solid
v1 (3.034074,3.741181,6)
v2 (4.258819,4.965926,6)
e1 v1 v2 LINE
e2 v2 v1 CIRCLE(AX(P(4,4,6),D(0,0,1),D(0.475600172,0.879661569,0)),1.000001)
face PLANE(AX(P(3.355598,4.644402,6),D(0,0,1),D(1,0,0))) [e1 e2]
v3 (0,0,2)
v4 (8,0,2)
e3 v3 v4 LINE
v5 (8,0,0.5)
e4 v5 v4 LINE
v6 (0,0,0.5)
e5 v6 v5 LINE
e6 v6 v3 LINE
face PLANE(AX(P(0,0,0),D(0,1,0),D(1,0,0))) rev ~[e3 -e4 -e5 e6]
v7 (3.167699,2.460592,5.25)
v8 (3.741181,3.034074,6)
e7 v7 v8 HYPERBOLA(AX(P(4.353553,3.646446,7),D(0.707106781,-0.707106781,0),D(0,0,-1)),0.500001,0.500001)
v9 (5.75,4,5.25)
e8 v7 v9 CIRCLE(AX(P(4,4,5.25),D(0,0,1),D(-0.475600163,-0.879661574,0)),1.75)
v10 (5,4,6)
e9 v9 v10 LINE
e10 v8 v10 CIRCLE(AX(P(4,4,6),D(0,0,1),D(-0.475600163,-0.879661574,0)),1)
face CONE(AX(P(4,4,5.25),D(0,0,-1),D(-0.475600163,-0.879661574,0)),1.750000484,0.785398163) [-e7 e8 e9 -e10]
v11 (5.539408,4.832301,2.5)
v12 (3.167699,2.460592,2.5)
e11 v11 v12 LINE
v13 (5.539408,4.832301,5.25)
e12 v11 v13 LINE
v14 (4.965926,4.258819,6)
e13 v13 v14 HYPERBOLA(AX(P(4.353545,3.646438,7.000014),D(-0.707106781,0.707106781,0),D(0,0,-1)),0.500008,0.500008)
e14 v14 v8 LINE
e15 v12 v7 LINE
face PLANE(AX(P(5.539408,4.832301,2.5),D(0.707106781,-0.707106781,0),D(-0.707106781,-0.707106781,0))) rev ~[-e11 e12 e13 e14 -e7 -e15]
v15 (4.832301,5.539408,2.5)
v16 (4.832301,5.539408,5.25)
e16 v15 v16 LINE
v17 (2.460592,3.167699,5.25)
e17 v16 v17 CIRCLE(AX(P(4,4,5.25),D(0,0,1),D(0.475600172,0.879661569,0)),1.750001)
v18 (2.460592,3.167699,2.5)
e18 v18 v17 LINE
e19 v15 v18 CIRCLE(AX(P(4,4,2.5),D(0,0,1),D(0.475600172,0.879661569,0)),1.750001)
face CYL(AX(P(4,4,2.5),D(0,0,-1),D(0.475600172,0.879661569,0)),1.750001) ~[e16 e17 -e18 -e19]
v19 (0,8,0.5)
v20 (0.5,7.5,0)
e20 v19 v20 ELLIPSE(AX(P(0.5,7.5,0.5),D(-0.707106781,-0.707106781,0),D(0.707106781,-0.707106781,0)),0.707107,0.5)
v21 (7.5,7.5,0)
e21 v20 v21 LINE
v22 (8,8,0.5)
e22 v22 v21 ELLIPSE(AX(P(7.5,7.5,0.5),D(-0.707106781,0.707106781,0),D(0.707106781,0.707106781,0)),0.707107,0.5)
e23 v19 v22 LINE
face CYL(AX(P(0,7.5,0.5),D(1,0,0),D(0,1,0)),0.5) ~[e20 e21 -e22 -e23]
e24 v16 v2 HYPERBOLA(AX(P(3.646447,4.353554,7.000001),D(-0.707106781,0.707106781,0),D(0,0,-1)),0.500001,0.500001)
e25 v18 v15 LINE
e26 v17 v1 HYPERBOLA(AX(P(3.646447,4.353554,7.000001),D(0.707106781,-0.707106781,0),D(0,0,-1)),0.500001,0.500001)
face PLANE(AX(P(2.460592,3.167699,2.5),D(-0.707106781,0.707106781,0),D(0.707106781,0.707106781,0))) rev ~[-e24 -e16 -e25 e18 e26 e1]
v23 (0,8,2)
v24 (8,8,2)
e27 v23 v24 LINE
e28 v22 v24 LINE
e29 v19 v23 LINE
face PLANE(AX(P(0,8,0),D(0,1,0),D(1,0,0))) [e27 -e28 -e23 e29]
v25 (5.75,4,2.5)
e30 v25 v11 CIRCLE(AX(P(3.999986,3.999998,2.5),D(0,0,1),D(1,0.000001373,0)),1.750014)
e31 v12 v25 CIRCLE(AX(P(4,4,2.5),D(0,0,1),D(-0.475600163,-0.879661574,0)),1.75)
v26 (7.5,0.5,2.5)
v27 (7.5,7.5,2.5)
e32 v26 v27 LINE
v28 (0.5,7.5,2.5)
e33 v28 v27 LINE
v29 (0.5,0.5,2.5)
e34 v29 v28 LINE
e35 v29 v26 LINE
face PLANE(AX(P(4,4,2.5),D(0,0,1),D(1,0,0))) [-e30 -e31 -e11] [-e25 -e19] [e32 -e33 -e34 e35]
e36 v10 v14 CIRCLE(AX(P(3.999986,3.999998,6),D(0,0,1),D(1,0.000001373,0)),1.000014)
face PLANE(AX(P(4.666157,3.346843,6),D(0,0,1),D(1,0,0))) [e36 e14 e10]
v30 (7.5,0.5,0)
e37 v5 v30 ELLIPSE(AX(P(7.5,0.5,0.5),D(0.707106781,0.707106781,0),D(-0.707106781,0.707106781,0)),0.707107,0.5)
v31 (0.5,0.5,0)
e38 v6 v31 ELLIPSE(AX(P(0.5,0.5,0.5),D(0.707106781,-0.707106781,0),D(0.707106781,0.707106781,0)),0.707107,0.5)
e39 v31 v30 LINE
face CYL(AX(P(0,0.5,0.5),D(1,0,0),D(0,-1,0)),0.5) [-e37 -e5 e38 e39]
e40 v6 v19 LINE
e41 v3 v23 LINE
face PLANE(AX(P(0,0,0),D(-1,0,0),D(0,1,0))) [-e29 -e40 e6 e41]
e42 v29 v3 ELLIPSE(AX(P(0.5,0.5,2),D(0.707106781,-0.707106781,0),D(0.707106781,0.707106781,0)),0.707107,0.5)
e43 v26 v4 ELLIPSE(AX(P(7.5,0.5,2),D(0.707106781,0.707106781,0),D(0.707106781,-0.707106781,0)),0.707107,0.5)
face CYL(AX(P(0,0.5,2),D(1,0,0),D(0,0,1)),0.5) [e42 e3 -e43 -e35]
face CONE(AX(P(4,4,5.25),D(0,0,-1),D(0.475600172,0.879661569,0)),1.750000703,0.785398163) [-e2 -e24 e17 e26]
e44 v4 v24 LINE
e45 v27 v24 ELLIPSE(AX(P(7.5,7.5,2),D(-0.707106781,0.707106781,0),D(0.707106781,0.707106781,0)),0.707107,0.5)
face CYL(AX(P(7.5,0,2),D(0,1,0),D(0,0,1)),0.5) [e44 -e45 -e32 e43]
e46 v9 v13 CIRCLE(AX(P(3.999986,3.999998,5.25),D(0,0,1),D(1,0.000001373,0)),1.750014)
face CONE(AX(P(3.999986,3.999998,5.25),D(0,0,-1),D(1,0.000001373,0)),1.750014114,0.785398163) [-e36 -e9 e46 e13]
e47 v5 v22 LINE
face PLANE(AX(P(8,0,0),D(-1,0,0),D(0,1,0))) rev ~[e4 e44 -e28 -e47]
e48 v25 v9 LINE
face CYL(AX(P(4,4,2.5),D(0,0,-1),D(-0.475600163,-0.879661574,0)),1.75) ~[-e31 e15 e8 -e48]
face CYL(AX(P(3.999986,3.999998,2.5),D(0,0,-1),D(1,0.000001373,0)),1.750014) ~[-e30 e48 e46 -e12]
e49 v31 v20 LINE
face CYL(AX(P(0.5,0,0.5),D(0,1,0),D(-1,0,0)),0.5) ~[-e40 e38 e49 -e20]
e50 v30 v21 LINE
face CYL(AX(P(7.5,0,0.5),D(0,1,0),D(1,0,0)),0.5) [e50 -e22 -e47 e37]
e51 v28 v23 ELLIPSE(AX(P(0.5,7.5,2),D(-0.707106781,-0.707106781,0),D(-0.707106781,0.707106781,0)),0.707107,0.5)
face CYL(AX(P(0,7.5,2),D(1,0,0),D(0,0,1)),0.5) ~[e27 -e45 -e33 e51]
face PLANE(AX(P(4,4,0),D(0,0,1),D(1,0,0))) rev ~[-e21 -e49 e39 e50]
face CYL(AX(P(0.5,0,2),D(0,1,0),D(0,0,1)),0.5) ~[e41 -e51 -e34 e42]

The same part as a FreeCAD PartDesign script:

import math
import FreeCAD as App
import Part
import Sketcher

V = App.Vector
Q = App.Units.Quantity


def edges_at(feature, points):
    """Names of the edges that pass closest to the given points."""
    edges = feature.Shape.Edges
    near = lambda p: min(range(len(edges)), key=lambda i: edges[i].distToShape(Part.Vertex(*p))[0])
    return sorted({f"Edge{near(p) + 1}" for p in points})


def add_polygon(sketch, points):
    """Adds a closed chain of lines whose ends are joined by coincident constraints."""
    first, n = sketch.GeometryCount, len(points)
    for a, b in zip(points, points[1:] + points[:1]):
        sketch.addGeometry(Part.LineSegment(App.Vector(*a, 0), App.Vector(*b, 0)), False)
    for i in range(n):
        sketch.addConstraint(Sketcher.Constraint("Coincident", first + i, 2, first + (i + 1) % n, 1))

doc = App.newDocument("Part")
body = doc.addObject("PartDesign::Body", "Body")

# Sketch on XY plane
sketch1 = doc.addObject("Sketcher::SketchObject", "Sketch")
body.addObject(sketch1)
sketch1.AttachmentSupport = (doc.XY_Plane, [""])
sketch1.MapMode = "FlatFace"
add_polygon(sketch1, [(0, 8), (0, 0), (8, 0), (8, 8)])  # lines 0-3
sketch1.addConstraint(Sketcher.Constraint("Vertical", 0))
sketch1.addConstraint(Sketcher.Constraint("Horizontal", 1))
sketch1.addConstraint(Sketcher.Constraint("Vertical", 2))
sketch1.addConstraint(Sketcher.Constraint("Horizontal", 3))
sketch1.addConstraint(Sketcher.Constraint("Coincident", 0, 2, -1, 1))
sketch1.addConstraint(Sketcher.Constraint("Equal", 3, 0))
sketch1.addConstraint(Sketcher.Constraint("DistanceX", 1, 1, 1, 2, 8.0))
pad1 = doc.addObject("PartDesign::Pad", "Pad")
body.addObject(pad1)
pad1.Profile = sketch1
pad1.Length = 2.5

# Sketch on XY plane
sketch2 = doc.addObject("Sketcher::SketchObject", "Sketch001")
body.addObject(sketch2)
sketch2.AttachmentSupport = (doc.XY_Plane, [""])
sketch2.MapMode = "FlatFace"
sketch2.AttachmentOffset = App.Placement(V(0, 0, 2.5), App.Rotation())
sketch2.addGeometry(Part.LineSegment(V(2.5, 3.2, 0), V(4.8, 5.5, 0)), False)
sketch2.addGeometry(Part.ArcOfCircle(Part.Circle(V(4, 4, 0), V(0, 0, 1), 1.8), math.radians(62), math.radians(208)), False)
sketch2.addGeometry(Part.ArcOfCircle(Part.Circle(V(4, 4, 0), V(0, 0, 1), 1.8), math.radians(-118), math.radians(0)), False)
sketch2.addGeometry(Part.ArcOfCircle(Part.Circle(V(4, 4, 0), V(0, 0, 1), 1.8), math.radians(0), math.radians(28)), False)
sketch2.addGeometry(Part.LineSegment(V(5.5, 4.8, 0), V(3.2, 2.5, 0)), False)
sketch2.addConstraint(Sketcher.Constraint("Coincident", 0, 1, 1, 2))
sketch2.addConstraint(Sketcher.Constraint("Coincident", 1, 1, 0, 2))
sketch2.addConstraint(Sketcher.Constraint("Tangent", 2, 2, 3, 1))
sketch2.addConstraint(Sketcher.Constraint("Coincident", 3, 2, 4, 1))
sketch2.addConstraint(Sketcher.Constraint("Coincident", 4, 2, 2, 1))
sketch2.addConstraint(Sketcher.Constraint("Coincident", 2, 3, 1, 3))
sketch2.addConstraint(Sketcher.Constraint("Equal", 1, 2))
sketch2.addConstraint(Sketcher.Constraint("Parallel", 0, 4))
sketch2.addConstraint(Sketcher.Constraint("Horizontal", 1, 3, 2, 2))
sketch2.addConstraint(Sketcher.Constraint("Equal", 0, 4))
sketch2.addConstraint(Sketcher.Constraint("Angle", 0, Q("45 deg")))
sketch2.addConstraint(Sketcher.Constraint("Radius", 1, 1.750001))
sketch2.addConstraint(Sketcher.Constraint("DistanceX", -1, 1, 1, 3, 4.0))
sketch2.addConstraint(Sketcher.Constraint("DistanceY", -1, 1, 1, 3, 4.0))
sketch2.addConstraint(Sketcher.Constraint("Radius", 3, 1.750014))
sketch2.addConstraint(Sketcher.Constraint("DistanceY", -1, 1, 0, 1, 3.167699))
pad2 = doc.addObject("PartDesign::Pad", "Pad001")
body.addObject(pad2)
pad2.Profile = sketch2
pad2.Length = 3.5
doc.recompute()

chamfer = doc.addObject("PartDesign::Chamfer", "Chamfer")
body.addObject(chamfer)
chamfer.Base = (pad2, edges_at(pad2, [(4.896, 2.497, 6), (2.763, 5.237, 6)]))
chamfer.Size = 0.75
doc.recompute()

fillet = doc.addObject("PartDesign::Fillet", "Fillet")
body.addObject(fillet)
fillet.Base = (chamfer, edges_at(chamfer, [
    (0, 4, 2.5),
    (4, 0, 2.5),
    (8, 4, 2.5),
    (4, 8, 2.5),
    (4, 8, 0),
    (8, 4, 0),
    (4, 0, 0),
    (0, 4, 0),
]))
fillet.Radius = 0.5

doc.recompute()
